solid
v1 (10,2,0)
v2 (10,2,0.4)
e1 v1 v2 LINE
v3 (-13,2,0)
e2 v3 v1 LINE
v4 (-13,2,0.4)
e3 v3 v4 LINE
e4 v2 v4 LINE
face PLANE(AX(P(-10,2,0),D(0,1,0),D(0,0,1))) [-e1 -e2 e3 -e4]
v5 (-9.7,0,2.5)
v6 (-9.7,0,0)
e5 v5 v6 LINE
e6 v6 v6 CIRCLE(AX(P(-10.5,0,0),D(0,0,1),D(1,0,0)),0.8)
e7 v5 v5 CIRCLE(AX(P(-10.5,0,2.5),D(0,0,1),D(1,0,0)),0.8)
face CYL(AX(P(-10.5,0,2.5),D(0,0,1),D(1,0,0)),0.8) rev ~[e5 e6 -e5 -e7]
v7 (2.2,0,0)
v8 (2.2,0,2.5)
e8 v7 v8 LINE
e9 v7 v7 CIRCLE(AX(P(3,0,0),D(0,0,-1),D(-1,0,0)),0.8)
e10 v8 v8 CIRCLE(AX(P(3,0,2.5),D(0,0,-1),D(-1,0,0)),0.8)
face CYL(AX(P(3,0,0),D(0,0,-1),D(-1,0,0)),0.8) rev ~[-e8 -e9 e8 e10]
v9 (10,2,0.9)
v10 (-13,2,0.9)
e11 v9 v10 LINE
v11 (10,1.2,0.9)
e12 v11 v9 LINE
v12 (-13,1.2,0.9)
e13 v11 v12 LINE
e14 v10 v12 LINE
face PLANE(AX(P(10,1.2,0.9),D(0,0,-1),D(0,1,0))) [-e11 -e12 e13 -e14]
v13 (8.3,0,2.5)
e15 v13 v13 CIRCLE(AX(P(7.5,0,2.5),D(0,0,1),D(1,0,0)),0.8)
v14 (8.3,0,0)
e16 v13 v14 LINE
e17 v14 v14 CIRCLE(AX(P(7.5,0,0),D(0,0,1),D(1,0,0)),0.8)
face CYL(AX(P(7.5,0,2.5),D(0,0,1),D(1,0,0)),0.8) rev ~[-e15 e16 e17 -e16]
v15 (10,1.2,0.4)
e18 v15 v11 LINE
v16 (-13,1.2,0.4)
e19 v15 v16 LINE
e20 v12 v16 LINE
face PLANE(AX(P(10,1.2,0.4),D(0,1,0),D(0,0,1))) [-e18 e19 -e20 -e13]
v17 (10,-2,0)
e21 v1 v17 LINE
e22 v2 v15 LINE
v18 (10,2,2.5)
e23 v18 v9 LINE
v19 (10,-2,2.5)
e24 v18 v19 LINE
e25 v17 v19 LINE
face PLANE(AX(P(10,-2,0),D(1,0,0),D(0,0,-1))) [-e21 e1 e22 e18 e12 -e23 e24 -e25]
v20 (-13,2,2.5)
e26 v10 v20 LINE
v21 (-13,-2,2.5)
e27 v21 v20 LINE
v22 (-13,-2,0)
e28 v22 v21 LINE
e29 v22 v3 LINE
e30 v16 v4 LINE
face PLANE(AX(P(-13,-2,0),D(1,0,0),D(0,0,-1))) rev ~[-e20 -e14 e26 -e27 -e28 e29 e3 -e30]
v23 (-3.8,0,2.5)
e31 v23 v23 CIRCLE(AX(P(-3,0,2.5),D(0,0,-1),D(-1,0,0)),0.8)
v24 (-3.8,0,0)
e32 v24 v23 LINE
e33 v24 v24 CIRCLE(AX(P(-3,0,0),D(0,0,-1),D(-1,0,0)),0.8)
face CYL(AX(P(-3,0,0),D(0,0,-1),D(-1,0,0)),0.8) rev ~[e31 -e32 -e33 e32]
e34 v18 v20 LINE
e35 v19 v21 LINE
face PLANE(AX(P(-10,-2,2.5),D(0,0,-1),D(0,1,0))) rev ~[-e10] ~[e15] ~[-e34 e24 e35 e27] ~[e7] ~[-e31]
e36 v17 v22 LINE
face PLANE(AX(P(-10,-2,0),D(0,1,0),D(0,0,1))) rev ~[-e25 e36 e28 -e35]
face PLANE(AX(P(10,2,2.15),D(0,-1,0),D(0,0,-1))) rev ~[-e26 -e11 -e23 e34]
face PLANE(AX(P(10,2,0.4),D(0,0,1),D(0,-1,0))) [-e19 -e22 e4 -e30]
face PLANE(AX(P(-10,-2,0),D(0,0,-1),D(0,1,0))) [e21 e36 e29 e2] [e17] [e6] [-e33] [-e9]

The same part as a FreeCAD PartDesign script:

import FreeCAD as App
import Part
import Sketcher
Q = App.Units.Quantity


def add_polygon(sketch, points):
    """Adds a closed chain of lines whose ends are joined by coincident constraints."""
    first, n = sketch.GeometryCount, len(points)
    for a, b in zip(points, points[1:] + points[:1]):
        sketch.addGeometry(Part.LineSegment(App.Vector(*a, 0), App.Vector(*b, 0)), False)
    for i in range(n):
        sketch.addConstraint(Sketcher.Constraint("Coincident", first + i, 2, first + (i + 1) % n, 1))

doc = App.newDocument("Part")
body = doc.addObject("PartDesign::Body", "Body")

# Sketch on XY plane
sketch1 = doc.addObject("Sketcher::SketchObject", "Sketch")
body.addObject(sketch1)
sketch1.AttachmentSupport = (doc.XY_Plane, [""])
sketch1.MapMode = "FlatFace"
add_polygon(sketch1, [(-10, -2), (10, -2), (10, 2), (-10, 2)])  # lines 0-3
sketch1.addConstraint([
    Sketcher.Constraint("Horizontal", 0),
    Sketcher.Constraint("Vertical", 1),
    Sketcher.Constraint("Horizontal", 2),
    Sketcher.Constraint("Vertical", 3),
    Sketcher.Constraint("Symmetric", 0, 2, 2, 2, -1, 1),
    Sketcher.Constraint("DistanceX", 0, 1, 0, 2, Q("20 mm")),
    Sketcher.Constraint("DistanceY", 1, 1, 1, 2, Q("4 mm")),
])
pad1 = doc.addObject("PartDesign::Pad", "Pad")
body.addObject(pad1)
pad1.Profile = sketch1
pad1.Length = 2.5

# Sketch on XZ plane
sketch2 = doc.addObject("Sketcher::SketchObject", "Sketch001")
body.addObject(sketch2)
sketch2.AttachmentSupport = (doc.XZ_Plane, [""])
sketch2.MapMode = "FlatFace"
sketch2.AttachmentOffset = App.Placement(App.Vector(0, 0, -2), App.Rotation())
add_polygon(sketch2, [(-10, 1.6), (-10, 2.1), (10, 2.1), (10, 1.6)])  # lines 0-3
sketch2.addConstraint([
    Sketcher.Constraint("Vertical", 0),
    Sketcher.Constraint("Horizontal", 1),
    Sketcher.Constraint("Vertical", 2),
    Sketcher.Constraint("Horizontal", 3),
    Sketcher.Constraint("DistanceX", 1, 1, 1, 2, Q("20 mm")),
    Sketcher.Constraint("DistanceY", 0, 1, 0, 2, Q("0.5 mm")),
    Sketcher.Constraint("DistanceX", 0, 2, -1, 1, Q("10 mm")),
    Sketcher.Constraint("DistanceY", -1, 1, 0, 2, Q("2.15 mm")),
])
pocket1 = doc.addObject("PartDesign::Pocket", "Pocket")
body.addObject(pocket1)
pocket1.Profile = sketch2
pocket1.Length = 0.5
pocket1.Reversed = True

# Sketch on XY plane
sketch3 = doc.addObject("Sketcher::SketchObject", "Sketch002")
body.addObject(sketch3)
sketch3.AttachmentSupport = (doc.XY_Plane, [""])
sketch3.MapMode = "FlatFace"
sketch3.addGeometry([
    Part.Circle(App.Vector(-3, 0, 0), App.Vector(0, 0, 1), 0.8),
    Part.Circle(App.Vector(3, 0, 0), App.Vector(0, 0, 1), 0.8),
], False)
sketch3.addConstraint([
    Sketcher.Constraint("Equal", 0, 1),
    Sketcher.Constraint("Symmetric", 0, 3, 1, 3, -1, 1),
    Sketcher.Constraint("PointOnObject", 0, 3, -1),
    Sketcher.Constraint("Diameter", 0, Q("1.6 mm")),
    Sketcher.Constraint("DistanceX", 0, 3, -1, 1, Q("3 mm")),
])
pocket2 = doc.addObject("PartDesign::Pocket", "Pocket001")
body.addObject(pocket2)
pocket2.Profile = sketch3
pocket2.Length = 5
pocket2.Reversed = True

# Sketch on YZ plane
sketch4 = doc.addObject("Sketcher::SketchObject", "Sketch003")
body.addObject(sketch4)
sketch4.AttachmentSupport = (doc.YZ_Plane, [""])
sketch4.MapMode = "FlatFace"
sketch4.AttachmentOffset = App.Placement(App.Vector(0, 0, -10), App.Rotation())
add_polygon(sketch4, [(2, 0), (-2, 0), (-2, 2.5), (2, 2.5), (2, 2.15), (1.5, 2.15), (1.5, 1.65), (2, 1.65)])  # lines 0-7
sketch4.addConstraint([
    Sketcher.Constraint("Horizontal", 0),
    Sketcher.Constraint("Vertical", 1),
    Sketcher.Constraint("Horizontal", 2),
    Sketcher.Constraint("Vertical", 3),
    Sketcher.Constraint("Horizontal", 4),
    Sketcher.Constraint("Vertical", 5),
    Sketcher.Constraint("Horizontal", 6),
    Sketcher.Constraint("Vertical", 7),
    Sketcher.Constraint("Symmetric", 0, 2, 7, 2, -1, 1),
    Sketcher.Constraint("Vertical", 3, 2, 6, 2),
    Sketcher.Constraint("Equal", 6, 5),
    Sketcher.Constraint("DistanceX", 0, 2, 0, 1, Q("4 mm")),
    Sketcher.Constraint("DistanceX", 4, 2, 4, 1, Q("0.5 mm")),
    Sketcher.Constraint("DistanceY", 1, 1, 1, 2, Q("2.5 mm")),
    Sketcher.Constraint("DistanceY", 3, 2, 3, 1, Q("0.35 mm")),
])
pad2 = doc.addObject("PartDesign::Pad", "Pad001")
body.addObject(pad2)
pad2.Profile = sketch4
pad2.Length = 3
pad2.Reversed = True

# Sketch on XY plane
sketch5 = doc.addObject("Sketcher::SketchObject", "Sketch004")
body.addObject(sketch5)
sketch5.AttachmentSupport = (doc.XY_Plane, [""])
sketch5.MapMode = "FlatFace"
sketch5.AttachmentOffset = App.Placement(App.Vector(0, 0, 2.5), App.Rotation())
sketch5.addGeometry([
    Part.Circle(App.Vector(7.5, 0, 0), App.Vector(0, 0, 1), 0.8),
    Part.Circle(App.Vector(-10.5, 0, 0), App.Vector(0, 0, 1), 0.8),
], False)
sketch5.addConstraint([
    Sketcher.Constraint("Equal", 0, 1),
    Sketcher.Constraint("PointOnObject", 0, 3, -1),
    Sketcher.Constraint("PointOnObject", 1, 3, -1),
    Sketcher.Constraint("Diameter", 0, Q("1.6 mm")),
    Sketcher.Constraint("DistanceX", 1, 3, 0, 3, Q("18 mm")),
    Sketcher.Constraint("DistanceX", -1, 1, 0, 3, Q("7.5 mm")),
])
pocket3 = doc.addObject("PartDesign::Pocket", "Pocket002")
body.addObject(pocket3)
pocket3.Profile = sketch5
pocket3.Length = 3

# Sketch on YZ plane
sketch6 = doc.addObject("Sketcher::SketchObject", "Sketch005")
body.addObject(sketch6)
sketch6.AttachmentSupport = (doc.YZ_Plane, [""])
sketch6.MapMode = "FlatFace"
sketch6.AttachmentOffset = App.Placement(App.Vector(0, 0, 10), App.Rotation())
add_polygon(sketch6, [(2, 2.1), (1.2, 2.1), (1.2, 1.6), (2, 1.6)])  # lines 0-3
sketch6.addConstraint([
    Sketcher.Constraint("Horizontal", 0),
    Sketcher.Constraint("Vertical", 1),
    Sketcher.Constraint("Horizontal", 2),
    Sketcher.Constraint("Vertical", 3),
    Sketcher.Constraint("DistanceX", 0, 2, 0, 1, Q("0.8 mm")),
    Sketcher.Constraint("DistanceY", 1, 2, 1, 1, Q("0.5 mm")),
    Sketcher.Constraint("DistanceX", -1, 1, 2, 2, Q("2 mm")),
    Sketcher.Constraint("DistanceY", -1, 1, 0, 2, Q("2.15 mm")),
])
pocket4 = doc.addObject("PartDesign::Pocket", "Pocket003")
body.addObject(pocket4)
pocket4.Profile = sketch6
pocket4.Length = 30

# Sketch on YZ plane
sketch7 = doc.addObject("Sketcher::SketchObject", "Sketch006")
body.addObject(sketch7)
sketch7.AttachmentSupport = (doc.YZ_Plane, [""])
sketch7.MapMode = "FlatFace"
sketch7.AttachmentOffset = App.Placement(App.Vector(0, 0, 10), App.Rotation())
add_polygon(sketch7, [(2, 0.4), (2, 0.9), (1.2, 0.9), (1.2, 0.4)])  # lines 0-3
sketch7.addConstraint([
    Sketcher.Constraint("Vertical", 0),
    Sketcher.Constraint("Horizontal", 1),
    Sketcher.Constraint("Vertical", 2),
    Sketcher.Constraint("Horizontal", 3),
    Sketcher.Constraint("DistanceY", 0, 1, 0, 2, Q("0.5 mm")),
    Sketcher.Constraint("DistanceX", 1, 2, 1, 1, Q("0.8 mm")),
    Sketcher.Constraint("DistanceX", -1, 1, 0, 2, Q("2 mm")),
    Sketcher.Constraint("DistanceY", -1, 1, 0, 2, Q("0.9 mm")),
])
pocket5 = doc.addObject("PartDesign::Pocket", "Pocket004")
body.addObject(pocket5)
pocket5.Profile = sketch7
pocket5.Length = 30

# Sketch on YZ plane
sketch8 = doc.addObject("Sketcher::SketchObject", "Sketch007")
body.addObject(sketch8)
sketch8.AttachmentSupport = (doc.YZ_Plane, [""])
sketch8.MapMode = "FlatFace"
sketch8.AttachmentOffset = App.Placement(App.Vector(0, 0, 10), App.Rotation())
add_polygon(sketch8, [(1.2, 1.6), (2, 1.6), (2, 2.1), (1.2, 2.1)])  # lines 0-3
sketch8.addConstraint([
    Sketcher.Constraint("Horizontal", 0),
    Sketcher.Constraint("Vertical", 1),
    Sketcher.Constraint("Horizontal", 2),
    Sketcher.Constraint("Vertical", 3),
    Sketcher.Constraint("DistanceX", 0, 1, 0, 2, Q("0.8 mm")),
    Sketcher.Constraint("DistanceY", 1, 1, 1, 2, Q("0.5 mm")),
    Sketcher.Constraint("DistanceX", -1, 1, 0, 2, Q("2 mm")),
    Sketcher.Constraint("DistanceY", -1, 1, 0, 2, Q("1.65 mm")),
])
pad3 = doc.addObject("PartDesign::Pad", "Pad002")
body.addObject(pad3)
pad3.Profile = sketch8
pad3.Length = 23
pad3.Reversed = True

doc.recompute()
